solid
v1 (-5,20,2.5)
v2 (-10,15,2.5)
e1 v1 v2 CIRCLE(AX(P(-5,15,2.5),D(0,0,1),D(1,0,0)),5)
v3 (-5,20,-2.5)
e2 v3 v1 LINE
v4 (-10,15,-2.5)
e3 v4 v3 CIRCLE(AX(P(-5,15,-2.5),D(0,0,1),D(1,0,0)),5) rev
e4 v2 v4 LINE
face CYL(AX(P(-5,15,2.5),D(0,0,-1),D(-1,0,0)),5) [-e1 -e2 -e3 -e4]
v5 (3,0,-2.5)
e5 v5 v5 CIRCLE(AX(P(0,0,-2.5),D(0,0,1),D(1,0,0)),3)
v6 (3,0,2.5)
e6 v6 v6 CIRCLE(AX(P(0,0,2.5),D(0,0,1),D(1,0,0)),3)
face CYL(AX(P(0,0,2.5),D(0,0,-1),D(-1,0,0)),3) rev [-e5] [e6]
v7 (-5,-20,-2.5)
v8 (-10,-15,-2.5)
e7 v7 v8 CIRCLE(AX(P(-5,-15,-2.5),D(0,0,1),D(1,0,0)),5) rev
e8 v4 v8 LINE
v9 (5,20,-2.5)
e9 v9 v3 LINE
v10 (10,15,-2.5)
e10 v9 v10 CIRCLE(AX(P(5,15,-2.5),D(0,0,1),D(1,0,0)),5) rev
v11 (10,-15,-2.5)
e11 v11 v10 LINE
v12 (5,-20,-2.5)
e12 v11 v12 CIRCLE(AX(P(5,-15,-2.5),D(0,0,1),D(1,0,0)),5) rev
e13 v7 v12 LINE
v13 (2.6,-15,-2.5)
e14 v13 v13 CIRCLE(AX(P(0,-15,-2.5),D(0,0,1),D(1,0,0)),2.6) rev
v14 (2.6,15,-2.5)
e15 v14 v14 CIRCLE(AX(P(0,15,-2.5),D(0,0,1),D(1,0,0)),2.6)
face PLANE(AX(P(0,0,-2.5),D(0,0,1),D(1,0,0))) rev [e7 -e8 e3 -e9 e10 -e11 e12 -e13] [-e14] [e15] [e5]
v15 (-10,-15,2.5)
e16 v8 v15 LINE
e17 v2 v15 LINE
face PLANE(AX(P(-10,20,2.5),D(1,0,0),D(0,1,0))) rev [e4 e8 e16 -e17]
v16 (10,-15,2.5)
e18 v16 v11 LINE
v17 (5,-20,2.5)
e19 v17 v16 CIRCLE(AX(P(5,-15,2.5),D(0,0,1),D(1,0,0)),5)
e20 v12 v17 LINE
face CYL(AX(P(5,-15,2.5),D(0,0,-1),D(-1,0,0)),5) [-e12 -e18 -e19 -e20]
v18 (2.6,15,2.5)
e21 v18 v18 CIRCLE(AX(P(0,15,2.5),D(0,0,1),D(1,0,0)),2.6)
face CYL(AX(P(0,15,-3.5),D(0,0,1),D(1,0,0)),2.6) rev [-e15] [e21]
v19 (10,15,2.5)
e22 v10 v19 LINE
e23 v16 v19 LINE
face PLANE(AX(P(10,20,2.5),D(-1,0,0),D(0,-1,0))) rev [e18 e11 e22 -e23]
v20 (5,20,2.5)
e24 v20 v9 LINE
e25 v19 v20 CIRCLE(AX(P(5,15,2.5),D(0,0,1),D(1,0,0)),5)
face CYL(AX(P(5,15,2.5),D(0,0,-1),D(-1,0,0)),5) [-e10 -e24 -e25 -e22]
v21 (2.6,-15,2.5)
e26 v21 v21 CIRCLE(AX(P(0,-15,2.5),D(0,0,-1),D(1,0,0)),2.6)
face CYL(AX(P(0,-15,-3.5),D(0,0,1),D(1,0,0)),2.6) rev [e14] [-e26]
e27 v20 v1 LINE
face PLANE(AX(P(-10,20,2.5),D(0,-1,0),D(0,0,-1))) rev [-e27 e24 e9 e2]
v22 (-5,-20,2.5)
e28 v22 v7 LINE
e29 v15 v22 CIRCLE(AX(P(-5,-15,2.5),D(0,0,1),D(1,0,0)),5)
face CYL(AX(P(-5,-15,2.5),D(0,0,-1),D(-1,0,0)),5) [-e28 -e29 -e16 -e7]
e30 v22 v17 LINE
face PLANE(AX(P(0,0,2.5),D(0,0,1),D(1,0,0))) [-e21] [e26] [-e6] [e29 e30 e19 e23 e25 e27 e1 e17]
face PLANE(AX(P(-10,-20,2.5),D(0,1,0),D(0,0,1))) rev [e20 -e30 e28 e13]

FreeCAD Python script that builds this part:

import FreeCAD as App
import Part
import Sketcher
from FreeCAD import Vector


def edges_at(feature, points):
    """Names of the edges that pass closest to the given points."""
    edges = feature.Shape.Edges
    near = lambda p: min(range(len(edges)), key=lambda i: edges[i].distToShape(Part.Vertex(*p))[0])
    return sorted({f"Edge{near(p) + 1}" for p in points})

doc = App.newDocument("Part")
body = doc.addObject("PartDesign::Body", "Body")

sketch1 = doc.addObject("Sketcher::SketchObject", "Sketch")
body.addObject(sketch1)
sketch1.AttachmentSupport = (doc.XY_Plane, [""])
sketch1.MapMode = "FlatFace"
sketch1.addGeometry([
    Part.LineSegment(Vector(-10, 20, 0), Vector(-10, -20, 0)),
    Part.LineSegment(Vector(-10, -20, 0), Vector(10, -20, 0)),
    Part.LineSegment(Vector(10, -20, 0), Vector(10, 20, 0)),
    Part.LineSegment(Vector(10, 20, 0), Vector(-10, 20, 0)),
    Part.Circle(Vector(0, 0, 0), Vector(0, 0, 1), 3),
], False)
sketch1.addConstraint([
    Sketcher.Constraint("Coincident", 0, 2, 1, 1),
    Sketcher.Constraint("Coincident", 1, 2, 2, 1),
    Sketcher.Constraint("Coincident", 2, 2, 3, 1),
    Sketcher.Constraint("Coincident", 3, 2, 0, 1),
    Sketcher.Constraint("Vertical", 0),
    Sketcher.Constraint("Horizontal", 1),
    Sketcher.Constraint("Vertical", 2),
    Sketcher.Constraint("Horizontal", 3),
    Sketcher.Constraint("Coincident", 4, 3, -1, 1),
    Sketcher.Constraint("Symmetric", 0, 2, 2, 2, -1, 1),
    Sketcher.Constraint("Diameter", 4, 6.0),
    Sketcher.Constraint("DistanceX", 1, 1, 1, 2, 20.0),
    Sketcher.Constraint("DistanceY", 0, 2, 0, 1, 40.0),
])
pad1 = doc.addObject("PartDesign::Pad", "Pad")
body.addObject(pad1)
pad1.Profile = sketch1
pad1.Length = 5
pad1.Midplane = True
doc.recompute()

fillet = doc.addObject("PartDesign::Fillet", "Fillet")
body.addObject(fillet)
fillet.Base = (pad1, edges_at(pad1, [
    (10, -20, 0),
    (-10, -20, 0),
    (-10, 20, 0),
    (10, 20, 0),
]))
fillet.Radius = 5

sketch2 = doc.addObject("Sketcher::SketchObject", "Sketch001")
body.addObject(sketch2)
sketch2.AttachmentSupport = (doc.XY_Plane, [""])
sketch2.MapMode = "FlatFace"
sketch2.AttachmentOffset = App.Placement(Vector(0, 0, 2.5), App.Rotation())
sketch2.addGeometry(Part.Circle(Vector(0, 15, 0), Vector(0, 0, 1), 2.6), False)
sketch2.addConstraint([
    Sketcher.Constraint("PointOnObject", 0, 3, -2),
    Sketcher.Constraint("Diameter", 0, 5.2),
    Sketcher.Constraint("DistanceY", -1, 1, 0, 3, 15.0),
])
pocket1 = doc.addObject("PartDesign::Pocket", "Pocket")
body.addObject(pocket1)
pocket1.Profile = sketch2
pocket1.Length = 6
doc.recompute()

mirrored = doc.addObject("PartDesign::Mirrored", "Mirrored")
body.addObject(mirrored)
mirrored.Originals = [pocket1]
mirrored.MirrorPlane = (doc.XZ_Plane, [""])
body.Tip = mirrored

doc.recompute()
